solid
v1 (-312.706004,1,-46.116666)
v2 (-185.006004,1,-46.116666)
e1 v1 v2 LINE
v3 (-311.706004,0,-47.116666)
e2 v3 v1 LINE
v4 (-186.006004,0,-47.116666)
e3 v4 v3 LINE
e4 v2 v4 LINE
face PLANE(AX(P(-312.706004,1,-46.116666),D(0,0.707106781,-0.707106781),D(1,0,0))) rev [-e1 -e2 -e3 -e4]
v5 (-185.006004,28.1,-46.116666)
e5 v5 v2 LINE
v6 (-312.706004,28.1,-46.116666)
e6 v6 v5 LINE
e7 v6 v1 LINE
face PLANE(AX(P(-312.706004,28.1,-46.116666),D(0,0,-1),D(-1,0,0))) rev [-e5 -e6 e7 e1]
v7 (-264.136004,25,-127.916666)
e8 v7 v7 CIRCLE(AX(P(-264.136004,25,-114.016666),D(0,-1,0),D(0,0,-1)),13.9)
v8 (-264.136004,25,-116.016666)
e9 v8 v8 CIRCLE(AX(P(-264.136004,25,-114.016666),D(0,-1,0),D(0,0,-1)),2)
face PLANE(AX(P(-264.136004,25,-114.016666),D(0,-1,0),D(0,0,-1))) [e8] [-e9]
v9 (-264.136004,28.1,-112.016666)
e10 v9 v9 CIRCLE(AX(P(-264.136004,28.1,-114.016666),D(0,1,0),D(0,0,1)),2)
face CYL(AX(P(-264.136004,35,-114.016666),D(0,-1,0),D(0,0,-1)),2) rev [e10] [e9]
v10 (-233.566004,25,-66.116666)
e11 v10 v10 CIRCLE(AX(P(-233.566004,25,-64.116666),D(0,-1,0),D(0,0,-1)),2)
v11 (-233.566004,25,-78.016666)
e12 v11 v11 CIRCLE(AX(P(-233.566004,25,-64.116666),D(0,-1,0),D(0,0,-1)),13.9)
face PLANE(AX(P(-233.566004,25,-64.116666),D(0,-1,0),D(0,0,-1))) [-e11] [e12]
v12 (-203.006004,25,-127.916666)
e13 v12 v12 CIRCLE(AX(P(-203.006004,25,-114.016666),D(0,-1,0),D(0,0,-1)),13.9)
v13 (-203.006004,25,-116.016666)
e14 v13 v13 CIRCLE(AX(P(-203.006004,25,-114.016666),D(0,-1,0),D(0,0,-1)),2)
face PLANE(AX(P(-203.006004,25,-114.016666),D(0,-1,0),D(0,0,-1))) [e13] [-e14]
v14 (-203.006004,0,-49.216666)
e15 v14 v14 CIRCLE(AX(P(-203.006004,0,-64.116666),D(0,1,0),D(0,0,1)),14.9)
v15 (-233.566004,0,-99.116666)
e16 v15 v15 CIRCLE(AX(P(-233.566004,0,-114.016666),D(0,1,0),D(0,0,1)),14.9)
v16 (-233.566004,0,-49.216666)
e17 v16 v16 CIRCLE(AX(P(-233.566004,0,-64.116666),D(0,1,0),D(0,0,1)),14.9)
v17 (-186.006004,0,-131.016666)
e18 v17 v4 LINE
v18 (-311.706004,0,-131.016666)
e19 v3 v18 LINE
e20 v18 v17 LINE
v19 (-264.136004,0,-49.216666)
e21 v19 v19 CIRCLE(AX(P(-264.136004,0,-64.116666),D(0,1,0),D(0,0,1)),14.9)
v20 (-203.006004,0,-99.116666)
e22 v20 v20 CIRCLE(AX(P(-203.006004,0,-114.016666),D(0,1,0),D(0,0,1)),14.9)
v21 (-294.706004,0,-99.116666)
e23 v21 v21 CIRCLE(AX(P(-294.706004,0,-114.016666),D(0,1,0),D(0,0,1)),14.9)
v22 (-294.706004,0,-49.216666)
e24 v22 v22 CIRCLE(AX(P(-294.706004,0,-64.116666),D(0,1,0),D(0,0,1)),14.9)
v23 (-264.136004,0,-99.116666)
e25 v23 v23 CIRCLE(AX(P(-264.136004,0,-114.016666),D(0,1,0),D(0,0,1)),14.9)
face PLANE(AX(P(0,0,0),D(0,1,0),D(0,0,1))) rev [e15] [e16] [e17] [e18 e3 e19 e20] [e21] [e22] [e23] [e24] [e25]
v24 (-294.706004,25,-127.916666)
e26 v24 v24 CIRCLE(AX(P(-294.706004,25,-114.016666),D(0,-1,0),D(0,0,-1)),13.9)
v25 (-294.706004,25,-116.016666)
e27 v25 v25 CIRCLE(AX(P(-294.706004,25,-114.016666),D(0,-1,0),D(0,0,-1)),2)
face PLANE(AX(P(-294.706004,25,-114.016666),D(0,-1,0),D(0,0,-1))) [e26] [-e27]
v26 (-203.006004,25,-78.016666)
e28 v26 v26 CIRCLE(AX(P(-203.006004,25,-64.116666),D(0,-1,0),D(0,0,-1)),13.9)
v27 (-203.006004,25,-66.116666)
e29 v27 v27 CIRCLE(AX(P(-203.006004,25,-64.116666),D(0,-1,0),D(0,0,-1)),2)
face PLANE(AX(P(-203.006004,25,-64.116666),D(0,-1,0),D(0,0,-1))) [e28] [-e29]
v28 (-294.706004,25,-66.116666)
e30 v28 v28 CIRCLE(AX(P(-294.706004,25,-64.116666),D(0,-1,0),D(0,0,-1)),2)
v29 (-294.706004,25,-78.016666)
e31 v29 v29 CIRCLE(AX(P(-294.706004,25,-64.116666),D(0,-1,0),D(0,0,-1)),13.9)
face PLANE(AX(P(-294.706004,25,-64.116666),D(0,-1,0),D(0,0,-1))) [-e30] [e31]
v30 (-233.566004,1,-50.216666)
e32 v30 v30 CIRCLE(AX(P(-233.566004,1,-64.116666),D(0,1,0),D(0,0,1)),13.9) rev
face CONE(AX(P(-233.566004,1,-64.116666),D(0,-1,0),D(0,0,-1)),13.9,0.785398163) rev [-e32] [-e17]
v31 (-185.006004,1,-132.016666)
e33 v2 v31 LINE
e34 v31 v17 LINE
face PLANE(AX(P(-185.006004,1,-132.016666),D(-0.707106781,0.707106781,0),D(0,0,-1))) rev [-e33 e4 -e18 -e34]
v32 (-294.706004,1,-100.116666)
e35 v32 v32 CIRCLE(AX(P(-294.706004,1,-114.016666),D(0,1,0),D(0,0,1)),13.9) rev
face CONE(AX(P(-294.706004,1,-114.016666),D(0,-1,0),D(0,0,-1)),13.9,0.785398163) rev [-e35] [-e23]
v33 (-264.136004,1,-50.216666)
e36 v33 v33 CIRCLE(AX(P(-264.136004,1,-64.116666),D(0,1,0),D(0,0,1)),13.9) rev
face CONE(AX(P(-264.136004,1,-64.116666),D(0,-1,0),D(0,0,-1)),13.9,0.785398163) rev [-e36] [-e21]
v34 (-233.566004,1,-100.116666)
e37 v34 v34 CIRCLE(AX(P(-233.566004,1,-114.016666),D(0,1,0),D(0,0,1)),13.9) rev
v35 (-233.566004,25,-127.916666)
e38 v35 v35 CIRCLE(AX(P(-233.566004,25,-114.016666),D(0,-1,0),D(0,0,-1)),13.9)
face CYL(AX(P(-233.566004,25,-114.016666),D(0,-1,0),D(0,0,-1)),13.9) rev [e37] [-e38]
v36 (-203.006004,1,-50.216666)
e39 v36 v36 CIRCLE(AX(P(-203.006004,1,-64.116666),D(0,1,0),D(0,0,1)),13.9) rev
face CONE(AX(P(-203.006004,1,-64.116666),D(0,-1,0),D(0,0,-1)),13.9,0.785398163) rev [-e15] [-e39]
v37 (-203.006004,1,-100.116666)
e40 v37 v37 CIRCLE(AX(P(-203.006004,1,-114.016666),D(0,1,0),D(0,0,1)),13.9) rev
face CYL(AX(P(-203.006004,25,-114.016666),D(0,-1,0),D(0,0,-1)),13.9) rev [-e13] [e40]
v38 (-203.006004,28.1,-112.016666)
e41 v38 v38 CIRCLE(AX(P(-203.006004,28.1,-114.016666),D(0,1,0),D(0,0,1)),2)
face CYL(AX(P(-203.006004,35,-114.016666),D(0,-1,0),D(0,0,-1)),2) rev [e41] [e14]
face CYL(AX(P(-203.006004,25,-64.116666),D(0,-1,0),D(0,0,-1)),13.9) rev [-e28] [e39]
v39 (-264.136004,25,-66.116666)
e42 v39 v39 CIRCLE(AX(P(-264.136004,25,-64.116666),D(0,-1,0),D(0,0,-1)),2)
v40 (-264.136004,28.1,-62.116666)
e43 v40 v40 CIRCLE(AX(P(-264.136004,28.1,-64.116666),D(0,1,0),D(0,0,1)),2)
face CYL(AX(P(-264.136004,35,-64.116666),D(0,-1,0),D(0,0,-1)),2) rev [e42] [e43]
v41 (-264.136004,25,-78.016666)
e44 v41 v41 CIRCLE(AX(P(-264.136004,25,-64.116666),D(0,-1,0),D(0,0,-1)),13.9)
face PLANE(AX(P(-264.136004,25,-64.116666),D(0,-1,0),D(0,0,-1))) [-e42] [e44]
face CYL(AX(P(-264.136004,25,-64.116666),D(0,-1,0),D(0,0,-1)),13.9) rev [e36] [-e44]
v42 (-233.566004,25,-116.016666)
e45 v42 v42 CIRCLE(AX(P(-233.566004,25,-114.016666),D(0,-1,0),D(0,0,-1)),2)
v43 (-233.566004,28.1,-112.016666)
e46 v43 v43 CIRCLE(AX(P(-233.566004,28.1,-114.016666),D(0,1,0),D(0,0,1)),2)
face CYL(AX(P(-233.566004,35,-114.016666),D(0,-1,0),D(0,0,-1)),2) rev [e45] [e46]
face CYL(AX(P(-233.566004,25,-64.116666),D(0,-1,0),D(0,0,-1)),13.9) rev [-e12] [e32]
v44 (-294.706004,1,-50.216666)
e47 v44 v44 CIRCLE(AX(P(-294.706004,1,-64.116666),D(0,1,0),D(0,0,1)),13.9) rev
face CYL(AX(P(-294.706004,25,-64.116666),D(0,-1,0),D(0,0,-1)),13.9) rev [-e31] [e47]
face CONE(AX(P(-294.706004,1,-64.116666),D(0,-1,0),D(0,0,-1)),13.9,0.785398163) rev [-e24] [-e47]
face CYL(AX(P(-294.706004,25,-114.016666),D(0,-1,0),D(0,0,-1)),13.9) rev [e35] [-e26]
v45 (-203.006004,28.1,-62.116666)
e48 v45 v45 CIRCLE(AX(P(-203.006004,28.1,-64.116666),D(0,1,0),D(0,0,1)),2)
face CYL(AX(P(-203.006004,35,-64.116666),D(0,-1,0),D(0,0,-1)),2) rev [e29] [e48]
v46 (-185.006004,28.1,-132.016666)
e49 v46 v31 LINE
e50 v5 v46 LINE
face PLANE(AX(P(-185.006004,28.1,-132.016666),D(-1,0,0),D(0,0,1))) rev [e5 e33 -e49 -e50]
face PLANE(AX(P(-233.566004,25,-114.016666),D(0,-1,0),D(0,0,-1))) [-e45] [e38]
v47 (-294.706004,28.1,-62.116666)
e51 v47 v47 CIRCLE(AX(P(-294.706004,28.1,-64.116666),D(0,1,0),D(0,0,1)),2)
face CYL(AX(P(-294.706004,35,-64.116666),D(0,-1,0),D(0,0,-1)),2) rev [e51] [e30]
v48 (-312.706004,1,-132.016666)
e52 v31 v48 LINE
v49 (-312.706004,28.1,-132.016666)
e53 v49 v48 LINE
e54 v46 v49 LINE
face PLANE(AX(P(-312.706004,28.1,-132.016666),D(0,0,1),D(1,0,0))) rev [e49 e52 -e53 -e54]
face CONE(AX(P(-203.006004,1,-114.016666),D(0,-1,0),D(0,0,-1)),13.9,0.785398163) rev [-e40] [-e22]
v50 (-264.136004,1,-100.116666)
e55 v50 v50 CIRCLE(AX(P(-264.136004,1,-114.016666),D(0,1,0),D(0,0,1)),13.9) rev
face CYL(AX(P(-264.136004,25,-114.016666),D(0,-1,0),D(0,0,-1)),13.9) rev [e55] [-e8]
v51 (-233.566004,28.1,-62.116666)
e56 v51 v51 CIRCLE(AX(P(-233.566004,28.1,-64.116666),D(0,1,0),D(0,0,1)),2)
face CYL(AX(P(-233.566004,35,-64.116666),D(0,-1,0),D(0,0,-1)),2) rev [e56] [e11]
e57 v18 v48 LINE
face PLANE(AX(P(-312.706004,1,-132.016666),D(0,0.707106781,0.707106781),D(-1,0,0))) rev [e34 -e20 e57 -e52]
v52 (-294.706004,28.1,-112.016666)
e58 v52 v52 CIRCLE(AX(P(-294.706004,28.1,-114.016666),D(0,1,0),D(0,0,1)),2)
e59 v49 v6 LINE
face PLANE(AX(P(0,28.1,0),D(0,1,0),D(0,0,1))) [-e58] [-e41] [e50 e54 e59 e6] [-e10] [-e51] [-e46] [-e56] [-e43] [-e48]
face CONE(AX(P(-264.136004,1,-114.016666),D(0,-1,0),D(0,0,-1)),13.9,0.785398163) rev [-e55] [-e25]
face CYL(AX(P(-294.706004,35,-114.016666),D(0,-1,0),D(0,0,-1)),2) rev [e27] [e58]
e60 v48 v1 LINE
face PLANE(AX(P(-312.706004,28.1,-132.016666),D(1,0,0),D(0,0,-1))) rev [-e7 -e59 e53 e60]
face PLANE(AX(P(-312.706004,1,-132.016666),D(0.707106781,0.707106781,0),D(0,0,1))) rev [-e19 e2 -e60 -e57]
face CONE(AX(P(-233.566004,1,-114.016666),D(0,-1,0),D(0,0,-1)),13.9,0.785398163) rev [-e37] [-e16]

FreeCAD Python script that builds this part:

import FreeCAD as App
import Part
import Sketcher
from FreeCAD import Vector


def edges_at(feature, points):
    """Names of the edges that pass closest to the given points."""
    edges = feature.Shape.Edges
    near = lambda p: min(range(len(edges)), key=lambda i: edges[i].distToShape(Part.Vertex(*p))[0])
    return sorted({f"Edge{near(p) + 1}" for p in points})

doc = App.newDocument("Part")
body = doc.addObject("PartDesign::Body", "Body")

sketch1 = doc.addObject("Sketcher::SketchObject", "Sketch")
body.addObject(sketch1)
sketch1.AttachmentSupport = (doc.XZ_Plane, [""])
sketch1.MapMode = "FlatFace"
sketch1.addGeometry([
    Part.LineSegment(Vector(-312.706004, -132.016666, 0), Vector(-312.706004, -46.116666, 0)),
    Part.LineSegment(Vector(-312.706004, -46.116666, 0), Vector(-185.006004, -46.116666, 0)),
    Part.LineSegment(Vector(-185.006004, -46.116666, 0), Vector(-185.006004, -132.016666, 0)),
    Part.LineSegment(Vector(-185.006004, -132.016666, 0), Vector(-312.706004, -132.016666, 0)),
], False)
sketch1.addConstraint([
    Sketcher.Constraint("Coincident", 0, 2, 1, 1),
    Sketcher.Constraint("Coincident", 1, 2, 2, 1),
    Sketcher.Constraint("Coincident", 2, 2, 3, 1),
    Sketcher.Constraint("Coincident", 3, 2, 0, 1),
    Sketcher.Constraint("Vertical", 0),
    Sketcher.Constraint("Horizontal", 1),
    Sketcher.Constraint("Vertical", 2),
    Sketcher.Constraint("Horizontal", 3),
    Sketcher.Constraint("DistanceX", 1, 1, 1, 2, 127.7),
    Sketcher.Constraint("DistanceY", 0, 1, 0, 2, 85.9),
    Sketcher.Constraint("DistanceX", 0, 2, -1, 1, 312.706004),
    Sketcher.Constraint("DistanceY", 0, 2, -1, 1, 46.116666),
])
pad1 = doc.addObject("PartDesign::Pad", "Pad")
body.addObject(pad1)
pad1.Profile = sketch1
pad1.Length = 28.1
pad1.Reversed = True

sketch2 = doc.addObject("Sketcher::SketchObject", "Sketch001")
body.addObject(sketch2)
sketch2.AttachmentSupport = (doc.XZ_Plane, [""])
sketch2.MapMode = "FlatFace"
sketch2.addGeometry([
    Part.Circle(Vector(-294.706004, -64.116666, 0), Vector(0, 0, 1), 13.9),
    Part.Circle(Vector(-264.136004, -64.116666, 0), Vector(0, 0, 1), 13.9),
    Part.Circle(Vector(-233.566004, -64.116666, 0), Vector(0, 0, 1), 13.9),
    Part.Circle(Vector(-203.006004, -64.116666, 0), Vector(0, 0, 1), 13.9),
], False)
sketch2.addConstraint([
    Sketcher.Constraint("Equal", 0, 1),
    Sketcher.Constraint("Equal", 1, 2),
    Sketcher.Constraint("Equal", 2, 3),
    Sketcher.Constraint("Horizontal", 0, 3, 1, 3),
    Sketcher.Constraint("Horizontal", 1, 3, 2, 3),
    Sketcher.Constraint("Horizontal", 2, 3, 3, 3),
    Sketcher.Constraint("Diameter", 0, 27.8),
    Sketcher.Constraint("DistanceX", 0, 3, 3, 3, 91.7),
    Sketcher.Constraint("DistanceX", 0, 3, 1, 3, 30.57),
    Sketcher.Constraint("DistanceX", 1, 3, 2, 3, 30.57),
    Sketcher.Constraint("DistanceX", 0, 3, -1, 1, 294.706004),
    Sketcher.Constraint("DistanceY", 0, 3, -1, 1, 64.116666),
])
pocket1 = doc.addObject("PartDesign::Pocket", "Pocket")
body.addObject(pocket1)
pocket1.Profile = sketch2
pocket1.Length = 25
doc.recompute()

chamfer = doc.addObject("PartDesign::Chamfer", "Chamfer")
body.addObject(chamfer)
chamfer.Base = (pocket1, edges_at(pocket1, [(-250.236, 0, -64.117)]))
chamfer.Size = 1
doc.recompute()

chamfer2 = doc.addObject("PartDesign::Chamfer", "Chamfer001")
body.addObject(chamfer2)
chamfer2.Base = (chamfer, edges_at(chamfer, [(-280.806, 0, -64.117), (-189.106, 0, -64.117), (-219.666, 0, -64.117)]))
chamfer2.Size = 1

sketch3 = doc.addObject("Sketcher::SketchObject", "Sketch002")
body.addObject(sketch3)
sketch3.AttachmentSupport = (doc.XZ_Plane, [""])
sketch3.MapMode = "FlatFace"
sketch3.addGeometry([
    Part.Circle(Vector(-233.566004, -114.016666, 0), Vector(0, 0, 1), 13.9),
    Part.Circle(Vector(-264.136004, -114.016666, 0), Vector(0, 0, 1), 13.9),
    Part.Circle(Vector(-294.706004, -114.016666, 0), Vector(0, 0, 1), 13.9),
    Part.Circle(Vector(-203.006004, -114.016666, 0), Vector(0, 0, 1), 13.9),
], False)
sketch3.addConstraint([
    Sketcher.Constraint("Equal", 0, 1),
    Sketcher.Constraint("Equal", 1, 2),
    Sketcher.Constraint("Equal", 2, 3),
    Sketcher.Constraint("Horizontal", 0, 3, 1, 3),
    Sketcher.Constraint("Horizontal", 1, 3, 2, 3),
    Sketcher.Constraint("Horizontal", 2, 3, 3, 3),
    Sketcher.Constraint("Diameter", 0, 27.8),
    Sketcher.Constraint("DistanceX", 2, 3, 3, 3, 91.7),
    Sketcher.Constraint("DistanceX", 1, 3, 0, 3, 30.57),
    Sketcher.Constraint("DistanceX", 2, 3, 1, 3, 30.57),
    Sketcher.Constraint("DistanceX", 0, 3, -1, 1, 233.566004),
    Sketcher.Constraint("DistanceY", 0, 3, -1, 1, 114.016666),
])
pocket2 = doc.addObject("PartDesign::Pocket", "Pocket001")
body.addObject(pocket2)
pocket2.Profile = sketch3
pocket2.Length = 25
doc.recompute()

chamfer3 = doc.addObject("PartDesign::Chamfer", "Chamfer002")
body.addObject(chamfer3)
chamfer3.Base = (pocket2, edges_at(pocket2, [
    (-308.606, 0, -114.017),
    (-278.036, 0, -114.017),
    (-216.906, 0, -114.017),
    (-247.466, 0, -114.017),
]))
chamfer3.Size = 1
doc.recompute()

chamfer4 = doc.addObject("PartDesign::Chamfer", "Chamfer003")
body.addObject(chamfer4)
chamfer4.Base = (chamfer3, edges_at(chamfer3, [
    (-248.856, 0, -132.017),
    (-185.006, 0, -89.067),
    (-248.856, 0, -46.117),
    (-312.706, 0, -89.067),
]))
chamfer4.Size = 1

sketch4 = doc.addObject("Sketcher::SketchObject", "Sketch003")
body.addObject(sketch4)
sketch4.AttachmentSupport = (doc.XZ_Plane, [""])
sketch4.MapMode = "FlatFace"
sketch4.AttachmentOffset = App.Placement(Vector(0, 0, -25), App.Rotation())
sketch4.addGeometry([
    Part.Circle(Vector(-294.706004, -64.116666, 0), Vector(0, 0, 1), 2),
    Part.Circle(Vector(-264.136004, -64.116666, 0), Vector(0, 0, 1), 2),
    Part.Circle(Vector(-233.566004, -64.116666, 0), Vector(0, 0, 1), 2),
    Part.Circle(Vector(-203.006004, -64.116666, 0), Vector(0, 0, 1), 2),
    Part.Circle(Vector(-294.706004, -114.016666, 0), Vector(0, 0, 1), 2),
    Part.Circle(Vector(-264.136004, -114.016666, 0), Vector(0, 0, 1), 2),
    Part.Circle(Vector(-233.566004, -114.016666, 0), Vector(0, 0, 1), 2),
    Part.Circle(Vector(-203.006004, -114.016666, 0), Vector(0, 0, 1), 2),
], False)
sketch4.addConstraint([
    Sketcher.Constraint("Equal", 0, 1),
    Sketcher.Constraint("Equal", 1, 2),
    Sketcher.Constraint("Equal", 2, 3),
    Sketcher.Constraint("Equal", 3, 4),
    Sketcher.Constraint("Equal", 4, 5),
    Sketcher.Constraint("Equal", 5, 6),
    Sketcher.Constraint("Equal", 6, 7),
    Sketcher.Constraint("Horizontal", 0, 3, 1, 3),
    Sketcher.Constraint("Horizontal", 1, 3, 2, 3),
    Sketcher.Constraint("Horizontal", 2, 3, 3, 3),
    Sketcher.Constraint("Horizontal", 4, 3, 5, 3),
    Sketcher.Constraint("Horizontal", 5, 3, 6, 3),
    Sketcher.Constraint("Horizontal", 6, 3, 7, 3),
    Sketcher.Constraint("Vertical", 0, 3, 4, 3),
    Sketcher.Constraint("Vertical", 1, 3, 5, 3),
    Sketcher.Constraint("Vertical", 2, 3, 6, 3),
    Sketcher.Constraint("Vertical", 3, 3, 7, 3),
    Sketcher.Constraint("Diameter", 0, 4.0),
    Sketcher.Constraint("DistanceX", 0, 3, 3, 3, 91.7),
    Sketcher.Constraint("DistanceY", 4, 3, 0, 3, 49.9),
    Sketcher.Constraint("DistanceX", 0, 3, 1, 3, 30.57),
    Sketcher.Constraint("DistanceX", 1, 3, 2, 3, 30.57),
    Sketcher.Constraint("DistanceX", 0, 3, -1, 1, 294.706004),
    Sketcher.Constraint("DistanceY", 0, 3, -1, 1, 64.116666),
])
pocket3 = doc.addObject("PartDesign::Pocket", "Pocket002")
body.addObject(pocket3)
pocket3.Profile = sketch4
pocket3.Length = 10

doc.recompute()
